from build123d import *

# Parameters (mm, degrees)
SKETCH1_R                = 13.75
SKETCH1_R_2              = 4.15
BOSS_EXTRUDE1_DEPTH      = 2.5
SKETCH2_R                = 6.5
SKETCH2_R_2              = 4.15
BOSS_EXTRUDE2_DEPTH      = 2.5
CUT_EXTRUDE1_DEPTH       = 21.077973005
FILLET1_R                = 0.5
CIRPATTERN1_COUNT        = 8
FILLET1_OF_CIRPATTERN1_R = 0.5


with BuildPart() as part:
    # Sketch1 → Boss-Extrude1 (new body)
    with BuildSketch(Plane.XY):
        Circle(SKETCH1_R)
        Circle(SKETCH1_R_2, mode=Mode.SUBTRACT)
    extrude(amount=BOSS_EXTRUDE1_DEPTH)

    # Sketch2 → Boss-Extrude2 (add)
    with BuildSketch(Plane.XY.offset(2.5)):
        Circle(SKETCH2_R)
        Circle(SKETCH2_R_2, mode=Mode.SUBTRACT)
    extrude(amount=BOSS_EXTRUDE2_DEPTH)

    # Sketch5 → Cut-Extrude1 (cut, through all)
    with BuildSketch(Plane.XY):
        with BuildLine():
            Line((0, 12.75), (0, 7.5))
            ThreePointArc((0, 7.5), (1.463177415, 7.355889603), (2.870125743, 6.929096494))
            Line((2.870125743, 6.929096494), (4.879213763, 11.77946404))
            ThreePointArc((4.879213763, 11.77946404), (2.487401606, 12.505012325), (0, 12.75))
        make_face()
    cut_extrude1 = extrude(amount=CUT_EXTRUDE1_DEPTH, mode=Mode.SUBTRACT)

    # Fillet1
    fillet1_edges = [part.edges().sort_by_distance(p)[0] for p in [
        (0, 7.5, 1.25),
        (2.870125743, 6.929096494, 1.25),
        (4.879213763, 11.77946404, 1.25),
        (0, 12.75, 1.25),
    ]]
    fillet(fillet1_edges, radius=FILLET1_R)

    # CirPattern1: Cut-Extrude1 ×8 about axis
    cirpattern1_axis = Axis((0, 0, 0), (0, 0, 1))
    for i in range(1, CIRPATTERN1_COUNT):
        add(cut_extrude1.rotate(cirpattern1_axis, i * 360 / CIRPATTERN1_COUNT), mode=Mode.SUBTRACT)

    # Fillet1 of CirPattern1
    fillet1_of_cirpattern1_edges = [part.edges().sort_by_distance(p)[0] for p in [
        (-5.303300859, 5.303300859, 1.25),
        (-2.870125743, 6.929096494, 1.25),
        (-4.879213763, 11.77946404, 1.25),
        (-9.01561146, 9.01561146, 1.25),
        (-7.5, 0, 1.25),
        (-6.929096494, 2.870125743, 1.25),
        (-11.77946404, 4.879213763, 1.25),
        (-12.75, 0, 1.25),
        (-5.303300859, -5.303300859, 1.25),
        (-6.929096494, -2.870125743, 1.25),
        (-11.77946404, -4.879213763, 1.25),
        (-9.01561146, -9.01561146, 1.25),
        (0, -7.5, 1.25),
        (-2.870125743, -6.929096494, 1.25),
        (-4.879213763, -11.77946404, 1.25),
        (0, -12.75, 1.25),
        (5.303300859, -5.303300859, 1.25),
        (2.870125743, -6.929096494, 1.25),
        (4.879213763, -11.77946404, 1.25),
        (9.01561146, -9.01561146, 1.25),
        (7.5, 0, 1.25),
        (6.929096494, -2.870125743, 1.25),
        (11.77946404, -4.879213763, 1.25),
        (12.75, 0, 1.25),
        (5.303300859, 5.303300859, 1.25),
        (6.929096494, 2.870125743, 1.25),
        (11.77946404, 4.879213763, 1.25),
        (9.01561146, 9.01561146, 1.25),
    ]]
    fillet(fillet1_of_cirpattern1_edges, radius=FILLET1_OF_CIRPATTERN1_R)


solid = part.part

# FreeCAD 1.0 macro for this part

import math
import FreeCAD as App
import Part
import Sketcher

V = App.Vector
Q = App.Units.Quantity


def edges_at(feature, points):
    """Names of the edges that pass closest to the given points."""
    edges = feature.Shape.Edges
    near = lambda p: min(range(len(edges)), key=lambda i: edges[i].distToShape(Part.Vertex(*p))[0])
    return sorted({f"Edge{near(p) + 1}" for p in points})

doc = App.newDocument("Part")
body = doc.addObject("PartDesign::Body", "Body")

# Sketch on XY plane
sketch1 = body.newObject("Sketcher::SketchObject", "Sketch")
sketch1.AttachmentSupport = (doc.getObject("XY_Plane"), [""])
sketch1.MapMode = "FlatFace"
sketch1.addGeometry(Part.Circle(V(0, 0, 0), V(0, 0, 1), 13.75), False)
sketch1.addGeometry(Part.Circle(V(0, 0, 0), V(0, 0, 1), 4.15), False)
sketch1.addConstraint(Sketcher.Constraint("Coincident", 0, 3, -1, 1))
sketch1.addConstraint(Sketcher.Constraint("Coincident", 1, 3, -1, 1))
sketch1.addConstraint(Sketcher.Constraint("Diameter", 0, 27.5))
sketch1.addConstraint(Sketcher.Constraint("Diameter", 1, 8.3))
pad1 = body.newObject("PartDesign::Pad", "Pad")
pad1.Profile = sketch1
pad1.Length = 2.5

# Sketch on XY plane
sketch2 = body.newObject("Sketcher::SketchObject", "Sketch001")
sketch2.AttachmentSupport = (doc.getObject("XY_Plane"), [""])
sketch2.MapMode = "FlatFace"
sketch2.AttachmentOffset = App.Placement(V(0, 0, 2.5), App.Rotation())
sketch2.addGeometry(Part.Circle(V(0, 0, 0), V(0, 0, 1), 6.5), False)
sketch2.addGeometry(Part.Circle(V(0, 0, 0), V(0, 0, 1), 4.15), False)
sketch2.addConstraint(Sketcher.Constraint("Coincident", 0, 3, -1, 1))
sketch2.addConstraint(Sketcher.Constraint("Coincident", 1, 3, -1, 1))
sketch2.addConstraint(Sketcher.Constraint("Diameter", 0, 13.0))
sketch2.addConstraint(Sketcher.Constraint("Diameter", 1, 8.3))
pad2 = body.newObject("PartDesign::Pad", "Pad001")
pad2.Profile = sketch2
pad2.Length = 2.5

# Sketch on XY plane
sketch3 = body.newObject("Sketcher::SketchObject", "Sketch002")
sketch3.AttachmentSupport = (doc.getObject("XY_Plane"), [""])
sketch3.MapMode = "FlatFace"
sketch3.addGeometry(Part.LineSegment(V(0, 12.75, 0), V(0, 7.5, 0)), False)
sketch3.addGeometry(Part.ArcOfCircle(Part.Circle(V(0, 0, 0), V(0, 0, 1), 7.5), math.radians(67.5), math.radians(90)), False)
sketch3.addGeometry(Part.LineSegment(V(2.870126, 6.929096, 0), V(4.879214, 11.779464, 0)), False)
sketch3.addGeometry(Part.ArcOfCircle(Part.Circle(V(0, 0, 0), V(0, 0, 1), 12.75), math.radians(67.5), math.radians(90)), False)
sketch3.addConstraint(Sketcher.Constraint("Coincident", 0, 2, 1, 2))
sketch3.addConstraint(Sketcher.Constraint("Coincident", 1, 1, 2, 1))
sketch3.addConstraint(Sketcher.Constraint("Coincident", 2, 2, 3, 1))
sketch3.addConstraint(Sketcher.Constraint("Coincident", 3, 2, 0, 1))
sketch3.addConstraint(Sketcher.Constraint("Vertical", 0))
sketch3.addConstraint(Sketcher.Constraint("Coincident", 1, 3, -1, 1))
sketch3.addConstraint(Sketcher.Constraint("Coincident", 3, 3, -1, 1))
sketch3.addConstraint(Sketcher.Constraint("PointOnObject", 0, 2, -2))
sketch3.addConstraint(Sketcher.Constraint("Radius", 1, 7.5))
sketch3.addConstraint(Sketcher.Constraint("Radius", 3, 12.75))
sketch3.addConstraint(Sketcher.Constraint("Angle", 2, Q("67.5 deg")))
sketch3.addConstraint(Sketcher.Constraint("DistanceX", -1, 1, 1, 1, 2.870126))
pocket1 = body.newObject("PartDesign::Pocket", "Pocket")
pocket1.Profile = sketch3
pocket1.Type = "ThroughAll"
pocket1.Reversed = True
doc.recompute()

fillet = body.newObject("PartDesign::Fillet", "Fillet")
fillet.Base = (pocket1, edges_at(pocket1, [
    (0, 7.5, 1.25),
    (2.87, 6.929, 1.25),
    (4.879, 11.779, 1.25),
    (0, 12.75, 1.25),
]))
fillet.Radius = 0.5
doc.recompute()

polarpattern = body.newObject("PartDesign::PolarPattern", "PolarPattern")
polarpattern.Originals = [pocket1]
polarpattern.Axis = (doc.getObject("Z_Axis"), [""])
polarpattern.Angle = 360
polarpattern.Occurrences = 8
body.Tip = polarpattern
doc.recompute()

fillet2 = body.newObject("PartDesign::Fillet", "Fillet001")
fillet2.Base = (polarpattern, edges_at(polarpattern, [
    (-5.303, 5.303, 1.25),
    (-2.87, 6.929, 1.25),
    (-4.879, 11.779, 1.25),
    (-9.016, 9.016, 1.25),
    (-7.5, 0, 1.25),
    (-6.929, 2.87, 1.25),
    (-11.779, 4.879, 1.25),
    (-12.75, 0, 1.25),
    (-5.303, -5.303, 1.25),
    (-6.929, -2.87, 1.25),
    (-11.779, -4.879, 1.25),
    (-9.016, -9.016, 1.25),
    (0, -7.5, 1.25),
    (-2.87, -6.929, 1.25),
    (-4.879, -11.779, 1.25),
    (0, -12.75, 1.25),
    (5.303, -5.303, 1.25),
    (2.87, -6.929, 1.25),
    (4.879, -11.779, 1.25),
    (9.016, -9.016, 1.25),
    (7.5, 0, 1.25),
    (6.929, -2.87, 1.25),
    (11.779, -4.879, 1.25),
    (12.75, 0, 1.25),
    (5.303, 5.303, 1.25),
    (6.929, 2.87, 1.25),
    (11.779, 4.879, 1.25),
    (9.016, 9.016, 1.25),
]))
fillet2.Radius = 0.5

doc.recompute()
